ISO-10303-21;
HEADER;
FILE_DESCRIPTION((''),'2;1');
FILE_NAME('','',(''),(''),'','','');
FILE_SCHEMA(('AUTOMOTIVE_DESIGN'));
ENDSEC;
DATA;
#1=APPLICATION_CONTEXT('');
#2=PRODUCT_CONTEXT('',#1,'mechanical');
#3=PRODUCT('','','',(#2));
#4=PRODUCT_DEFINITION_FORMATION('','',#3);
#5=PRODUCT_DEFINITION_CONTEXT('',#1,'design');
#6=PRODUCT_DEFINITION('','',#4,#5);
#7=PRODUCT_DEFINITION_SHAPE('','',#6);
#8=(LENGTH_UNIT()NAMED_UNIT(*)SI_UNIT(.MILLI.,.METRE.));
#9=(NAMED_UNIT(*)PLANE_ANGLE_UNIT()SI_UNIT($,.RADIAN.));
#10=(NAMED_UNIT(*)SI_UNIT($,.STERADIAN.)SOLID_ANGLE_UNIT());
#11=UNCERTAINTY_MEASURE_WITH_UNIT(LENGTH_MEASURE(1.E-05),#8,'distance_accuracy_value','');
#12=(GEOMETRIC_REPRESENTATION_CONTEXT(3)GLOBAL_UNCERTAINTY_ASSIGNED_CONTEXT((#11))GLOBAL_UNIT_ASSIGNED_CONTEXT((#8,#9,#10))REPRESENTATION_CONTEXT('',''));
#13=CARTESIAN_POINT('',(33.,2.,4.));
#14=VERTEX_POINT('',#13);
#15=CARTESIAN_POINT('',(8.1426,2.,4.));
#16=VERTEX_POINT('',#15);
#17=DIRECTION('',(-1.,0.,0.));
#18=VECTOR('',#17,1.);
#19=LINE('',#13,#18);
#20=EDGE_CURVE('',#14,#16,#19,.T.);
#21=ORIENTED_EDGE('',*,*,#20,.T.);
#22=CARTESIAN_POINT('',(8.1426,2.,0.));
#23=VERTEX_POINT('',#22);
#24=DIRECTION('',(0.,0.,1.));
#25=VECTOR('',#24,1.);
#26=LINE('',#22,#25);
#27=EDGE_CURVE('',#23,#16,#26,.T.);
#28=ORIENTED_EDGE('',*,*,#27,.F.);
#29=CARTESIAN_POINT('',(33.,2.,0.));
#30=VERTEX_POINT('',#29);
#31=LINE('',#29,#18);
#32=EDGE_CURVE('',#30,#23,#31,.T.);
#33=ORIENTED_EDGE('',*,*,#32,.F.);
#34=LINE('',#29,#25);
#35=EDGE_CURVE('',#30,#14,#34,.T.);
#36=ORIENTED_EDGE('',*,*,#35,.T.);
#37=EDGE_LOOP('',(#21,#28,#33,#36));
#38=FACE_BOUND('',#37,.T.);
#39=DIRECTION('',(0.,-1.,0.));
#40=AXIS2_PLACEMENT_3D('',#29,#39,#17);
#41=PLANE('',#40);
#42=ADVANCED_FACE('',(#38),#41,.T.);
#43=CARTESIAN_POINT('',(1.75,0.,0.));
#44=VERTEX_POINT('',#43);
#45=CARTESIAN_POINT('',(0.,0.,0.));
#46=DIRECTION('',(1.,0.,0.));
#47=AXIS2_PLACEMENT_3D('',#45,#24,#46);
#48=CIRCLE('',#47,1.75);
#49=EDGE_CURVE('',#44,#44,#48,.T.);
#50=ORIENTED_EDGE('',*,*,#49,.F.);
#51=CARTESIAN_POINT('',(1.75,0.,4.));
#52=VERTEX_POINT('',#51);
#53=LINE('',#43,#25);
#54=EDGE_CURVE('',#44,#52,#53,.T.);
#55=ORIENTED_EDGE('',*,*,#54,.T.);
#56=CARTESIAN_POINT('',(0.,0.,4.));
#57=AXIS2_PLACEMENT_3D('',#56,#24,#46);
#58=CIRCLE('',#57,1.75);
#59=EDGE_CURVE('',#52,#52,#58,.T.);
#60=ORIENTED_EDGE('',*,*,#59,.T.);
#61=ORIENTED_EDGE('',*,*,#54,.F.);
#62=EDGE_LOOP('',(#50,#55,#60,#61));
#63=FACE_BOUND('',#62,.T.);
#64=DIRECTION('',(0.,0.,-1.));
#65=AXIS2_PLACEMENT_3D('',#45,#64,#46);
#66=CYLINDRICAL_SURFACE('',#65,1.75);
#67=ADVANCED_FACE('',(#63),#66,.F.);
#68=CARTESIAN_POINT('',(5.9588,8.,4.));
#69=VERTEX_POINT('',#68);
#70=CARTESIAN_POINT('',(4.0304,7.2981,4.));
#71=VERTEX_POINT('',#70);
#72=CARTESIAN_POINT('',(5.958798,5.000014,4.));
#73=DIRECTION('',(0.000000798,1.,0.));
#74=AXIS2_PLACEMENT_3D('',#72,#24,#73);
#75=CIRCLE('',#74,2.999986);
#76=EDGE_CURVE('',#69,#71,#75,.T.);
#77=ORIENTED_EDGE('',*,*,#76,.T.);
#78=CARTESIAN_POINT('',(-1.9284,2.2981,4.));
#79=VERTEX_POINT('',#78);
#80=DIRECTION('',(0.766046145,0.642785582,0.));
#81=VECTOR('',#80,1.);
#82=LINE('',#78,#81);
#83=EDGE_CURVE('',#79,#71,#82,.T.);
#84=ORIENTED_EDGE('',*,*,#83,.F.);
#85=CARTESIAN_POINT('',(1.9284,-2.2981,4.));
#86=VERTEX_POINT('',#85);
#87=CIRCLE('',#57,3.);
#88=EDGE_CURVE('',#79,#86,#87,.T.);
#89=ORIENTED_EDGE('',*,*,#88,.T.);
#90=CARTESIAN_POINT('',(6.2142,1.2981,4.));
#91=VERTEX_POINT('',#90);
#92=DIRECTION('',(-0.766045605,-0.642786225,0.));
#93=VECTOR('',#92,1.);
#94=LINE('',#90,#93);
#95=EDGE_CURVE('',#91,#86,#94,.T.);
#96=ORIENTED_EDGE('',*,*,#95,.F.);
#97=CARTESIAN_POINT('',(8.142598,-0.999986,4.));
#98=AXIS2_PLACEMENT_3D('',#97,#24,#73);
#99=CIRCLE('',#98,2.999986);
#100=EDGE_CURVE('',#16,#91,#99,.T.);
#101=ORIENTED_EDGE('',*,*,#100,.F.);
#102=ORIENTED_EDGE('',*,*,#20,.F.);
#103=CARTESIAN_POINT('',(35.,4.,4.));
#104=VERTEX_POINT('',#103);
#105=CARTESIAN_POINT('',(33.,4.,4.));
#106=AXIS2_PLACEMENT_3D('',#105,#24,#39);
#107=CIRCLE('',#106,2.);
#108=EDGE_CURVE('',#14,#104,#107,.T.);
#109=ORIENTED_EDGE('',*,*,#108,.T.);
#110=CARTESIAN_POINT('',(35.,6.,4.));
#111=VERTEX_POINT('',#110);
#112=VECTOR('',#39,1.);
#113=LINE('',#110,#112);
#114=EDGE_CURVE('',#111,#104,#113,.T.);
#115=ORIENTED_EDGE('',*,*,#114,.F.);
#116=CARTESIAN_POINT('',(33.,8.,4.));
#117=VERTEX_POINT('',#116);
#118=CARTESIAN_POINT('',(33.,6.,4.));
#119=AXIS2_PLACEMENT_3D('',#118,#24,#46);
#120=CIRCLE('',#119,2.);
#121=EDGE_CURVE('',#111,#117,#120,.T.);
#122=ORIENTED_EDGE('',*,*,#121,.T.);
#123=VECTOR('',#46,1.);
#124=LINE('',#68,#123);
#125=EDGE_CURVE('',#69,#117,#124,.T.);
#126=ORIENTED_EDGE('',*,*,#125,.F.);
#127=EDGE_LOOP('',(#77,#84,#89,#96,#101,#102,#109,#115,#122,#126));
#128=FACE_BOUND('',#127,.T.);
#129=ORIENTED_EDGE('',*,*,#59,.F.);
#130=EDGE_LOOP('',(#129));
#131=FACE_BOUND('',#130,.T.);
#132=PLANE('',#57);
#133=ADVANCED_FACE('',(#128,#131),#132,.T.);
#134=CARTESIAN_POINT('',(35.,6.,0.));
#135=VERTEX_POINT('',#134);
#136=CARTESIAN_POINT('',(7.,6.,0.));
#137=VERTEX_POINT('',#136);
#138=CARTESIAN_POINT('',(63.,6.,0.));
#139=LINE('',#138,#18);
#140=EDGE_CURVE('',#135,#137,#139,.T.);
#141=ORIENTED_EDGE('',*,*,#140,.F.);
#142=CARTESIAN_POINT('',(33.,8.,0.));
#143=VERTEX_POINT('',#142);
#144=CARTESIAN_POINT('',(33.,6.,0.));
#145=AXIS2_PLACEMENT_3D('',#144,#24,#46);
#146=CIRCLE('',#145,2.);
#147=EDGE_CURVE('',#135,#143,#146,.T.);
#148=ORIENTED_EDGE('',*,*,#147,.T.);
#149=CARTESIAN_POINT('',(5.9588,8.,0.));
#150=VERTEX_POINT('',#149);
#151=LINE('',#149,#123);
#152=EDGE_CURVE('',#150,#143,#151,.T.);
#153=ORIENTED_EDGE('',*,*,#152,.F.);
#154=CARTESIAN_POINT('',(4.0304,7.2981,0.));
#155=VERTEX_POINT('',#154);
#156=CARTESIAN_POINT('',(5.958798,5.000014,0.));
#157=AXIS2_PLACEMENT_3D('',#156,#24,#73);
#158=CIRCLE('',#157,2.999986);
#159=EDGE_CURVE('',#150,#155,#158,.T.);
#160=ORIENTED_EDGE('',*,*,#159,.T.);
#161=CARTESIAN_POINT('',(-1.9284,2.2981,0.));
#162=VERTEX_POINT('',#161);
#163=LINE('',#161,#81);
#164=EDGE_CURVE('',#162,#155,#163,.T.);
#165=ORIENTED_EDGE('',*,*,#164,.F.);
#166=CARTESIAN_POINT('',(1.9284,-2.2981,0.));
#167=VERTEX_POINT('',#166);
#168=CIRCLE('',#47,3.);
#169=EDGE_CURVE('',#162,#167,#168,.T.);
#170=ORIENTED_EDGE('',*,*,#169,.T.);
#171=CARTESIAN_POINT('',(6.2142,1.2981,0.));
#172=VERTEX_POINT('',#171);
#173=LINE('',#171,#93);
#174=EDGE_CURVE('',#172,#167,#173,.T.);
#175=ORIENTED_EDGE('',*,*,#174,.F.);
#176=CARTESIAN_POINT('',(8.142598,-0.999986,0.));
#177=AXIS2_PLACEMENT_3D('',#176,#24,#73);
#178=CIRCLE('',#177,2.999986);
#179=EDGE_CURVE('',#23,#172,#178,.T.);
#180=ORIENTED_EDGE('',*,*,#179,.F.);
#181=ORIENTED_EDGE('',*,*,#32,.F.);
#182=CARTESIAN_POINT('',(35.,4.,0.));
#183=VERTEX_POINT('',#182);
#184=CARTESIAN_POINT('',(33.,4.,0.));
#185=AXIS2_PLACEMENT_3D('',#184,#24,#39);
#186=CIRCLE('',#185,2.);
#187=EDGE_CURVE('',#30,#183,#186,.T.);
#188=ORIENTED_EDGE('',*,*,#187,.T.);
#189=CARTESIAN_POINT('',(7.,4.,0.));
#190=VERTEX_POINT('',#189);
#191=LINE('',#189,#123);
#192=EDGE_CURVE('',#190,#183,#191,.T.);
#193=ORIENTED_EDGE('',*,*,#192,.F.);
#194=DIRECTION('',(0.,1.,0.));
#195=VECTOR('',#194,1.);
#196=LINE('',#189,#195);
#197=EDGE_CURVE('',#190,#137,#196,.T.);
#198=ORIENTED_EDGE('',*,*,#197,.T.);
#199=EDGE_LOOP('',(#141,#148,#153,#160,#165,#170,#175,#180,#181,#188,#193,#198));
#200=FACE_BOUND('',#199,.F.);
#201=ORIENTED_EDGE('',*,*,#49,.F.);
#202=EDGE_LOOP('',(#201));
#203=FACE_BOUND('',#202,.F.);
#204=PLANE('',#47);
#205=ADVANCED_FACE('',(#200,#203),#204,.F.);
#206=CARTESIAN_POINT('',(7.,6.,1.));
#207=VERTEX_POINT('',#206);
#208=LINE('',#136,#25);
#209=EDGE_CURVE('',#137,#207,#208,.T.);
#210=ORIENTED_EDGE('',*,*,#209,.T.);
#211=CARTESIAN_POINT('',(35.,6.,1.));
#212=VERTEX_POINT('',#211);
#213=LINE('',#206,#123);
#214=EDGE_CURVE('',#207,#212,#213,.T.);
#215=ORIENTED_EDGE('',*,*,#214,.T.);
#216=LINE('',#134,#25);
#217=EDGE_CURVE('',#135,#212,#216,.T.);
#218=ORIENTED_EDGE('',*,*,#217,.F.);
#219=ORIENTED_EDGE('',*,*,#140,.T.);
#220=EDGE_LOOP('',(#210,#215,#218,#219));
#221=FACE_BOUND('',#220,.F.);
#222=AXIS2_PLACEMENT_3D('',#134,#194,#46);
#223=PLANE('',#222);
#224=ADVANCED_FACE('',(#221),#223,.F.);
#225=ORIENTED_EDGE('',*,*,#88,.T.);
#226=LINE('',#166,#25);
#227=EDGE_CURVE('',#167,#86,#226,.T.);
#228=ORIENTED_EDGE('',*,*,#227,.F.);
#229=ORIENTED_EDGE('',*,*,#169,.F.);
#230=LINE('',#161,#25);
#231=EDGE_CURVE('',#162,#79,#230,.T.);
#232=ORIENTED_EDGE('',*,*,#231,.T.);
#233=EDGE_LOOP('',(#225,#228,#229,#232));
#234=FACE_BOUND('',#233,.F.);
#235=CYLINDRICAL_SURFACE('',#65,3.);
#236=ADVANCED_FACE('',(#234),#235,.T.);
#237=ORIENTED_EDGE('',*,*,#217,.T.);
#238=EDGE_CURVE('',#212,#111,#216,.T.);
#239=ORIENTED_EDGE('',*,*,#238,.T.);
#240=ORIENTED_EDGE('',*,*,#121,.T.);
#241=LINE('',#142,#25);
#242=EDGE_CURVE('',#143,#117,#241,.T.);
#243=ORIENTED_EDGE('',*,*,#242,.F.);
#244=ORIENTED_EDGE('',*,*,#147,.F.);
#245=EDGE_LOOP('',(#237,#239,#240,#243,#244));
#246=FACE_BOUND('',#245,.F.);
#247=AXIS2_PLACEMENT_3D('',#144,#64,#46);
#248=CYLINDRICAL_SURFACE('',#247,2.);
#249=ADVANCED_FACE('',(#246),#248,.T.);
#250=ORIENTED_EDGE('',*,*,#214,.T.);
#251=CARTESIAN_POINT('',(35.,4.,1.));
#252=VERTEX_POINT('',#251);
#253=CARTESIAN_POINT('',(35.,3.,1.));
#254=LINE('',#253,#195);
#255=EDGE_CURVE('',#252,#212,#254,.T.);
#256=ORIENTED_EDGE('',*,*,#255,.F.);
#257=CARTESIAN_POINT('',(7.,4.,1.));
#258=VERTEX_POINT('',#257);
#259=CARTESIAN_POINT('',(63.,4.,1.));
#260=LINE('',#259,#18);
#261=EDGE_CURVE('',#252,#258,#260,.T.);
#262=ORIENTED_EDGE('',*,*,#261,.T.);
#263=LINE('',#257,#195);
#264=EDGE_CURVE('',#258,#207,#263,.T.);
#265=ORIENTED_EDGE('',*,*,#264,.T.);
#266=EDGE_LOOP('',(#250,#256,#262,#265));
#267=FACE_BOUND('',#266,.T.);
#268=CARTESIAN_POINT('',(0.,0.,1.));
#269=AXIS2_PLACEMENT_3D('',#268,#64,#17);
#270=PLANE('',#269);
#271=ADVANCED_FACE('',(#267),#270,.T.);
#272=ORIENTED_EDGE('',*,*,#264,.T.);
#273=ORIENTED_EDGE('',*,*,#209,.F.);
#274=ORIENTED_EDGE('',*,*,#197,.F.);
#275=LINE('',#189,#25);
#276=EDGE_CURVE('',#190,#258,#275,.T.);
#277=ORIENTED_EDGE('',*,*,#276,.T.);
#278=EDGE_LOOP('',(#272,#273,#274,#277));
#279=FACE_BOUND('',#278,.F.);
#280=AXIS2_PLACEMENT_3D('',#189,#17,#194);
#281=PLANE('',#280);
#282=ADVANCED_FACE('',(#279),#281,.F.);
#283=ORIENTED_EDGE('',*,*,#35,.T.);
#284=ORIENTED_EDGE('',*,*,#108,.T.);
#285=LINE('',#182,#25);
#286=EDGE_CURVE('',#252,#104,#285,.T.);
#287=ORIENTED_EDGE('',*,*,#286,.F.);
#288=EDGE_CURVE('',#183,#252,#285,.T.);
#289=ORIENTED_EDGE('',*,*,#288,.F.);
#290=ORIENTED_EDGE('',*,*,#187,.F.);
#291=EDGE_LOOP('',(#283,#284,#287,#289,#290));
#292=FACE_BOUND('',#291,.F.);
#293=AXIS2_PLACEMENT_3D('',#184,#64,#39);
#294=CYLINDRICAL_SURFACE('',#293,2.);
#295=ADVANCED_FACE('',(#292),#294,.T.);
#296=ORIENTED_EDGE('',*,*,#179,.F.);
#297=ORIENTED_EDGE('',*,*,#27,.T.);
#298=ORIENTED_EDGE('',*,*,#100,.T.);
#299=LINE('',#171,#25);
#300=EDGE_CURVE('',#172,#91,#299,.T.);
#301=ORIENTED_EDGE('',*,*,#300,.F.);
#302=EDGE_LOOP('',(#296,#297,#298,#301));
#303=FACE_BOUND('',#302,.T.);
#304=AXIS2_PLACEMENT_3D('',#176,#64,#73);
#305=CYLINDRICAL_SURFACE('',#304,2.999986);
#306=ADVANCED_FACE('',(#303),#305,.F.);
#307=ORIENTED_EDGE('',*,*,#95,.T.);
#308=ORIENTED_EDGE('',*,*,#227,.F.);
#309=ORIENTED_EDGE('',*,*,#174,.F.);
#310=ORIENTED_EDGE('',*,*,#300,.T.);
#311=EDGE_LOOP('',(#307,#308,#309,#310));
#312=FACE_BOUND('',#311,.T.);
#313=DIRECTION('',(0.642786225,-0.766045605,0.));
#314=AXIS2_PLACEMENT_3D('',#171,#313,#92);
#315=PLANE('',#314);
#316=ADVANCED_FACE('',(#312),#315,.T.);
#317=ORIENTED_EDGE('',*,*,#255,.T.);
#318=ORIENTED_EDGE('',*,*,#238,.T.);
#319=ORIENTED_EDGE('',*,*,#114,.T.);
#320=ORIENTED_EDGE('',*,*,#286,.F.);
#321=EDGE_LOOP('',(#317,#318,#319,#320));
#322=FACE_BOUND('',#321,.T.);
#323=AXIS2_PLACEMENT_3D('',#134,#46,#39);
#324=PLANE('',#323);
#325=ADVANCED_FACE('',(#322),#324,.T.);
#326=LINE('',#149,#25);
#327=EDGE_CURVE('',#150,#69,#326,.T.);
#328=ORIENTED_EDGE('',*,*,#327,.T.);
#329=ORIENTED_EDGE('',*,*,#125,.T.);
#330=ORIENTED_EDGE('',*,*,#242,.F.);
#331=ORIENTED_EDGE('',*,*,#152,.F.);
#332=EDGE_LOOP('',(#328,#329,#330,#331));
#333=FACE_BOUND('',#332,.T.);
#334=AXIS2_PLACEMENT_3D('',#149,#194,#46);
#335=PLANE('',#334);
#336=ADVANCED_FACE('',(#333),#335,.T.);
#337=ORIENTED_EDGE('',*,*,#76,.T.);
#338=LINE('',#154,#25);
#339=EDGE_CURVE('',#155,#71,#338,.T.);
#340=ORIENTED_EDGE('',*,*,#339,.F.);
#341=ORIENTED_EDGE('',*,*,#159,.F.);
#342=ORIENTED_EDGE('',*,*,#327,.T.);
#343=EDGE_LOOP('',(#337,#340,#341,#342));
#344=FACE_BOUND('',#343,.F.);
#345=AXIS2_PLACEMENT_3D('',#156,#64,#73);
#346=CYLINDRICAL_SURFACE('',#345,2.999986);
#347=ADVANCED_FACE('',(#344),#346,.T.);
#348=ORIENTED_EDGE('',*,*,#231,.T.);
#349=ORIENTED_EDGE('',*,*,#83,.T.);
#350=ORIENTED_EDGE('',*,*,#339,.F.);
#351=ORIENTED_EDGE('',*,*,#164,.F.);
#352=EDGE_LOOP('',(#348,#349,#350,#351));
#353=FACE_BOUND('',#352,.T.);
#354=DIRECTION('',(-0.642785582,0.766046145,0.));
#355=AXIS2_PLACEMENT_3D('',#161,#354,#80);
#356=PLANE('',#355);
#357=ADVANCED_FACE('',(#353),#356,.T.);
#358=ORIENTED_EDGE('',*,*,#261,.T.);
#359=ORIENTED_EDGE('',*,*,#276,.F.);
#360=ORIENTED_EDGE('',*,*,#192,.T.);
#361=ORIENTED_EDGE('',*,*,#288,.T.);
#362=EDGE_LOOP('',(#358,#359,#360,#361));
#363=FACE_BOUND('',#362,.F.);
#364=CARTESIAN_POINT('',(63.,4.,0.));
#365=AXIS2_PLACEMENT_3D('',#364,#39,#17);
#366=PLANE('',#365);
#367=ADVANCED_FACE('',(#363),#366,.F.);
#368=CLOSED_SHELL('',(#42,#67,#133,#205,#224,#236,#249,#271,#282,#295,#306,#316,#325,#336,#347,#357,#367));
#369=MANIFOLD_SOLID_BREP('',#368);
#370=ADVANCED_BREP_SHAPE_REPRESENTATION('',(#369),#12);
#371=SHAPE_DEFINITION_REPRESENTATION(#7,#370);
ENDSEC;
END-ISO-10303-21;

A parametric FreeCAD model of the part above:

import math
import FreeCAD as App
import Part
import Sketcher

V = App.Vector
Q = App.Units.Quantity


def add_polygon(sketch, points):
    """Adds a closed chain of lines whose ends are joined by coincident constraints."""
    first, n = sketch.GeometryCount, len(points)
    for a, b in zip(points, points[1:] + points[:1]):
        sketch.addGeometry(Part.LineSegment(App.Vector(*a, 0), App.Vector(*b, 0)), False)
    for i in range(n):
        sketch.addConstraint(Sketcher.Constraint("Coincident", first + i, 2, first + (i + 1) % n, 1))

doc = App.newDocument("Part")
body = doc.addObject("PartDesign::Body", "Body")

# Sketch on XY plane
sketch1 = body.newObject("Sketcher::SketchObject", "Sketch")
sketch1.AttachmentSupport = (doc.getObject("XY_Plane"), [""])
sketch1.MapMode = "FlatFace"
sketch1.addGeometry([
    Part.ArcOfCircle(Part.Circle(V(0, 0, 0), V(0, 0, 1), 3), math.radians(130.000953), math.radians(310.000953)),  # 0
    Part.LineSegment(V(1.9284, -2.2981, 0), V(6.2142, 1.2981, 0)),  # 1
    Part.ArcOfCircle(Part.Circle(V(8.1426, -1, 0), V(0, 0, 1), 3), math.radians(90), math.radians(130.000953)),  # 2
    Part.LineSegment(V(8.1426, 2, 0), V(33, 2, 0)),  # 3
    Part.ArcOfCircle(Part.Circle(V(33, 4, 0), V(0, 0, 1), 2), math.radians(-90), math.radians(0)),  # 4
    Part.LineSegment(V(35, 4, 0), V(35, 6, 0)),  # 5
    Part.ArcOfCircle(Part.Circle(V(33, 6, 0), V(0, 0, 1), 2), math.radians(0), math.radians(90)),  # 6
    Part.LineSegment(V(33, 8, 0), V(5.9588, 8, 0)),  # 7
    Part.ArcOfCircle(Part.Circle(V(5.9588, 5, 0), V(0, 0, 1), 3), math.radians(90), math.radians(130.000953)),  # 8
    Part.LineSegment(V(4.0304, 7.2981, 0), V(-1.9284, 2.2981, 0)),  # 9
    Part.Circle(V(0, 0, 0), V(0, 0, 1), 1.75),  # 10
], False)
sketch1.addConstraint([
    Sketcher.Constraint("Tangent", 0, 2, 1, 1),
    Sketcher.Constraint("Tangent", 1, 2, 2, 2),
    Sketcher.Constraint("Tangent", 2, 1, 3, 1),
    Sketcher.Constraint("Tangent", 3, 2, 4, 1),
    Sketcher.Constraint("Tangent", 4, 2, 5, 1),
    Sketcher.Constraint("Tangent", 5, 2, 6, 1),
    Sketcher.Constraint("Tangent", 6, 2, 7, 1),
    Sketcher.Constraint("Tangent", 7, 2, 8, 1),
    Sketcher.Constraint("Tangent", 8, 2, 9, 1),
    Sketcher.Constraint("Tangent", 9, 2, 0, 1),
    Sketcher.Constraint("Horizontal", 3),
    Sketcher.Constraint("Vertical", 5),
    Sketcher.Constraint("Horizontal", 7),
    Sketcher.Constraint("Coincident", 0, 3, -1, 1),
    Sketcher.Constraint("Coincident", 10, 3, -1, 1),
    Sketcher.Constraint("Equal", 0, 2),
    Sketcher.Constraint("Equal", 4, 6),
    Sketcher.Constraint("Equal", 2, 8),
    Sketcher.Constraint("Parallel", 1, 9),
    Sketcher.Constraint("Radius", 0, 3.0),
    Sketcher.Constraint("Radius", 4, 2.0),
    Sketcher.Constraint("Diameter", 10, 3.5),
    Sketcher.Constraint("DistanceY", 5, 1, 5, 2, 2.0),
    Sketcher.Constraint("Angle", 9, Q("-140.0002 deg")),
    Sketcher.Constraint("DistanceY", -1, 1, 6, 3, 6.0),
    Sketcher.Constraint("DistanceX", -1, 1, 4, 2, 35.0),
])
pad1 = body.newObject("PartDesign::Pad", "Pad")
pad1.Profile = sketch1
pad1.Length = 4

# Sketch on XY plane
sketch2 = body.newObject("Sketcher::SketchObject", "Sketch001")
sketch2.AttachmentSupport = (doc.getObject("XY_Plane"), [""])
sketch2.MapMode = "FlatFace"
add_polygon(sketch2, [(63, 6), (63, 4), (7, 4), (7, 6)])  # lines 0-3
sketch2.addConstraint([
    Sketcher.Constraint("Vertical", 0),
    Sketcher.Constraint("Horizontal", 1),
    Sketcher.Constraint("Vertical", 2),
    Sketcher.Constraint("Horizontal", 3),
    Sketcher.Constraint("DistanceY", 0, 2, 0, 1, 2.0),
    Sketcher.Constraint("DistanceX", 1, 2, 1, 1, 56.0),
    Sketcher.Constraint("DistanceX", -1, 1, 0, 2, 63.0),
    Sketcher.Constraint("DistanceY", -1, 1, 0, 2, 4.0),
])
pocket1 = body.newObject("PartDesign::Pocket", "Pocket")
pocket1.Profile = sketch2
pocket1.Length = 1
pocket1.Reversed = True

doc.recompute()
